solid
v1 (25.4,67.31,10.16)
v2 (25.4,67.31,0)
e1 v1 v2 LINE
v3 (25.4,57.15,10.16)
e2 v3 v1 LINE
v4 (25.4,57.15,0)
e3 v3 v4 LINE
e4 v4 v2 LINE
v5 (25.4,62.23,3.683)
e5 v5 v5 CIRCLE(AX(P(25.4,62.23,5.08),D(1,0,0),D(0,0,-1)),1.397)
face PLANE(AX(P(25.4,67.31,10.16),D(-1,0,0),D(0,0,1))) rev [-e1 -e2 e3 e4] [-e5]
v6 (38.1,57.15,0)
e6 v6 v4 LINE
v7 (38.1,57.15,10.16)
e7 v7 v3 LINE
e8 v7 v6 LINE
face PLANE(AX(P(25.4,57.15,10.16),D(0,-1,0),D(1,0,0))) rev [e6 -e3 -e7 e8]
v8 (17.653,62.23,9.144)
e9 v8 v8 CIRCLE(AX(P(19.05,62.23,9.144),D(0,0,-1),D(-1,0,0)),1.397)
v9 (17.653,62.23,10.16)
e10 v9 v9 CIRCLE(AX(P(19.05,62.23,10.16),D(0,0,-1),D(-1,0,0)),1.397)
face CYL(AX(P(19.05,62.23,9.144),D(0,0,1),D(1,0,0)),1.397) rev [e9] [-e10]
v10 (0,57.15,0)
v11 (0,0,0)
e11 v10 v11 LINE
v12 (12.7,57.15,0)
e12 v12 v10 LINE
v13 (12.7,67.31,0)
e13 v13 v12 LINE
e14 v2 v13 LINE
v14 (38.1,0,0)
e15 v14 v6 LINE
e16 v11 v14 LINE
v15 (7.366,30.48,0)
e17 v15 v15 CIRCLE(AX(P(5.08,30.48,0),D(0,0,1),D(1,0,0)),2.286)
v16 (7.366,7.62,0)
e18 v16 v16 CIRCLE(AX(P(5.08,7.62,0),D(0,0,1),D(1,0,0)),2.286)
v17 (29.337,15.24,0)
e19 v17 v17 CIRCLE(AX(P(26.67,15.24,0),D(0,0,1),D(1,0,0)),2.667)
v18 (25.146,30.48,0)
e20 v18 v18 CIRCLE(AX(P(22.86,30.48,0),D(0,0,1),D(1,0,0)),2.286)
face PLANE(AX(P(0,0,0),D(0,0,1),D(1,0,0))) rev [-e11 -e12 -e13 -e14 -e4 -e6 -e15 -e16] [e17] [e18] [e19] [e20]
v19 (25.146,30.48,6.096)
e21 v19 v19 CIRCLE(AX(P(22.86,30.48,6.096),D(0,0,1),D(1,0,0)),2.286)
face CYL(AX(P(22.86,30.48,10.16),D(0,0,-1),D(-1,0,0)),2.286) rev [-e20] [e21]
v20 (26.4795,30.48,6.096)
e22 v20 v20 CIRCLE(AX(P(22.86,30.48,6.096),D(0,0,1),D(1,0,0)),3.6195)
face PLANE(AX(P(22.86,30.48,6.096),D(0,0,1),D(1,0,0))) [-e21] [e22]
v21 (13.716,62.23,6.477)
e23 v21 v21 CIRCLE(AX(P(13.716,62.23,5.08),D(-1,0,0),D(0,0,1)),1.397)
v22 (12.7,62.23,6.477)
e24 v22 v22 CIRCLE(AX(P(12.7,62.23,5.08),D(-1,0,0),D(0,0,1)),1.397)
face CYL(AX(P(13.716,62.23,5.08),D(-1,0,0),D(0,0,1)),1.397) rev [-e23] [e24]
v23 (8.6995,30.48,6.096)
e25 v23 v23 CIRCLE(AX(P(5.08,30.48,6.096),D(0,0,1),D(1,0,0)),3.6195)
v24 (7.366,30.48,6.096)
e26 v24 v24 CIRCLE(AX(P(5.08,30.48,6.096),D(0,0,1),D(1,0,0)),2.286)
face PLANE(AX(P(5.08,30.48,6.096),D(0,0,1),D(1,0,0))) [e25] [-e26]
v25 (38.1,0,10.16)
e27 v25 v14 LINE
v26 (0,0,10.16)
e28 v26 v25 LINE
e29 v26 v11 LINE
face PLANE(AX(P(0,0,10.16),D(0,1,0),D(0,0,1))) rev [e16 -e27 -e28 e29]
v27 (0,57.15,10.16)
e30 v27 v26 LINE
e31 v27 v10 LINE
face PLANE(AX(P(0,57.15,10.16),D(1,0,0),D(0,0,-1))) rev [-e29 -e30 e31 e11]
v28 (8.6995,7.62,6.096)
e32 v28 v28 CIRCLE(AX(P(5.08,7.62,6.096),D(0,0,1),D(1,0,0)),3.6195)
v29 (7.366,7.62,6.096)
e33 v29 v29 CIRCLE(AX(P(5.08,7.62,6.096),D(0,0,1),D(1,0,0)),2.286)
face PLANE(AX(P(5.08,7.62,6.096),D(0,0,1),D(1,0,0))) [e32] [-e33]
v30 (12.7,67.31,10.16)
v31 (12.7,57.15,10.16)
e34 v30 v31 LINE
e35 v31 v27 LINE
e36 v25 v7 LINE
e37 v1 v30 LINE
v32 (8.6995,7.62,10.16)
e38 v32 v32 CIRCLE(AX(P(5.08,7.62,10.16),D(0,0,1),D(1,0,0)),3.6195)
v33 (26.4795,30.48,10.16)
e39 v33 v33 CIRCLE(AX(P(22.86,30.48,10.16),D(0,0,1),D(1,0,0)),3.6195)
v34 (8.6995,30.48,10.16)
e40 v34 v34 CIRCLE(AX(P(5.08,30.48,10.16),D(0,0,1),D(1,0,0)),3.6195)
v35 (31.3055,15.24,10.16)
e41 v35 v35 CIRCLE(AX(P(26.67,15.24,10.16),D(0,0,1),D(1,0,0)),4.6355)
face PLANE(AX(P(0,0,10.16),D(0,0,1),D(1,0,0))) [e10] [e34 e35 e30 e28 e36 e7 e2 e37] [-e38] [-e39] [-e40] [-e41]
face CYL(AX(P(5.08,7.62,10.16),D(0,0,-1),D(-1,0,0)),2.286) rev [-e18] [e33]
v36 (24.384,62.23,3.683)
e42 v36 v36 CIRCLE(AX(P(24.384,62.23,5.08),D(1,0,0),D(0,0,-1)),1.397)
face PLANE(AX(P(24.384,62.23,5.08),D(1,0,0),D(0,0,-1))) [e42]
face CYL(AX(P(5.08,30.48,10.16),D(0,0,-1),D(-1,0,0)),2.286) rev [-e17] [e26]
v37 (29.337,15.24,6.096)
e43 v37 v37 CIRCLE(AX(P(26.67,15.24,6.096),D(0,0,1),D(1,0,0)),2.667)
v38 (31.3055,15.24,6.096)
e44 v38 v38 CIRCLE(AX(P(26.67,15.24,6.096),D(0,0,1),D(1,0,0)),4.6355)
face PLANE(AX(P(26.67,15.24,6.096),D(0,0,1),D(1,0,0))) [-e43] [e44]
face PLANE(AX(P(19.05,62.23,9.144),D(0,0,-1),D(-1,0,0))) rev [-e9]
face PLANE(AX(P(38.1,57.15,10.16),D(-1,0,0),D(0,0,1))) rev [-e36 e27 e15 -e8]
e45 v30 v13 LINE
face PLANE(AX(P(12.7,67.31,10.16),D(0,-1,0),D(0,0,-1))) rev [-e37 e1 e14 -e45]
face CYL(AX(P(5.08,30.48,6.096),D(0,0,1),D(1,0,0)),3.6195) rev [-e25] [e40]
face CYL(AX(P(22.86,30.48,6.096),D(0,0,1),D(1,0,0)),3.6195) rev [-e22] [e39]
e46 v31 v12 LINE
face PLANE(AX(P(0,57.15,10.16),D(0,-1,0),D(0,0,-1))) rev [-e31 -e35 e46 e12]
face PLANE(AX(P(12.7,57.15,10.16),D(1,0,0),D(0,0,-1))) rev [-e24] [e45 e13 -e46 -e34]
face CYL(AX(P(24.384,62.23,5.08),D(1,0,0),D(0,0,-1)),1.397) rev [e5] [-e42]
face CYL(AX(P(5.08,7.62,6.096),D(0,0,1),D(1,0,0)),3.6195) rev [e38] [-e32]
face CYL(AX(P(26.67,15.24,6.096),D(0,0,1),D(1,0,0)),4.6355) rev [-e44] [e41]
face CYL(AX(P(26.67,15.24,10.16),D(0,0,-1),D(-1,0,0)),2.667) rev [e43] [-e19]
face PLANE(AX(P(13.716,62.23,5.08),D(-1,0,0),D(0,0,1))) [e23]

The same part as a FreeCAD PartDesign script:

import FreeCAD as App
import Part
import Sketcher
Q = App.Units.Quantity


def add_polygon(sketch, points):
    """Adds a closed chain of lines whose ends are joined by coincident constraints."""
    first, n = sketch.GeometryCount, len(points)
    for a, b in zip(points, points[1:] + points[:1]):
        sketch.addGeometry(Part.LineSegment(App.Vector(*a, 0), App.Vector(*b, 0)), False)
    for i in range(n):
        sketch.addConstraint(Sketcher.Constraint("Coincident", first + i, 2, first + (i + 1) % n, 1))

doc = App.newDocument("Part")
body = doc.addObject("PartDesign::Body", "Body")

sketch1 = body.newObject("Sketcher::SketchObject", "Sketch")
sketch1.AttachmentSupport = (doc.getObject("XY_Plane"), [""])
sketch1.MapMode = "FlatFace"
add_polygon(sketch1, [(12.7, 57.15), (0, 57.15), (0, 0), (38.1, 0), (38.1, 57.15), (25.4, 57.15), (25.4, 67.31), (12.7, 67.31)])
sketch1.addGeometry(Part.Circle(App.Vector(26.67, 15.24, 0), App.Vector(0, 0, 1), 2.667), False)
sketch1.addGeometry(Part.Circle(App.Vector(5.08, 7.62, 0), App.Vector(0, 0, 1), 2.286), False)
sketch1.addGeometry(Part.Circle(App.Vector(22.86, 30.48, 0), App.Vector(0, 0, 1), 2.286), False)
sketch1.addGeometry(Part.Circle(App.Vector(5.08, 30.48, 0), App.Vector(0, 0, 1), 2.286), False)
sketch1.addConstraint(Sketcher.Constraint("Horizontal", 0))
sketch1.addConstraint(Sketcher.Constraint("Vertical", 1))
sketch1.addConstraint(Sketcher.Constraint("Horizontal", 2))
sketch1.addConstraint(Sketcher.Constraint("Vertical", 3))
sketch1.addConstraint(Sketcher.Constraint("Horizontal", 4))
sketch1.addConstraint(Sketcher.Constraint("Vertical", 5))
sketch1.addConstraint(Sketcher.Constraint("Horizontal", 6))
sketch1.addConstraint(Sketcher.Constraint("Vertical", 7))
sketch1.addConstraint(Sketcher.Constraint("Coincident", 1, 2, -1, 1))
sketch1.addConstraint(Sketcher.Constraint("Equal", 9, 10))
sketch1.addConstraint(Sketcher.Constraint("Equal", 10, 11))
sketch1.addConstraint(Sketcher.Constraint("Horizontal", 10, 3, 11, 3))
sketch1.addConstraint(Sketcher.Constraint("Horizontal", 0, 2, 3, 2))
sketch1.addConstraint(Sketcher.Constraint("Vertical", 9, 3, 11, 3))
sketch1.addConstraint(Sketcher.Constraint("Equal", 0, 4))
sketch1.addConstraint(Sketcher.Constraint("Equal", 4, 6))
sketch1.addConstraint(Sketcher.Constraint("Diameter", 8, Q("0.21 in")))
sketch1.addConstraint(Sketcher.Constraint("Diameter", 9, Q("0.18 in")))
sketch1.addConstraint(Sketcher.Constraint("DistanceX", 0, 2, 0, 1, Q("0.5 in")))
sketch1.addConstraint(Sketcher.Constraint("DistanceY", 5, 1, 5, 2, Q("0.4 in")))
sketch1.addConstraint(Sketcher.Constraint("DistanceY", 1, 2, 1, 1, Q("2.25 in")))
sketch1.addConstraint(Sketcher.Constraint("DistanceY", -1, 1, 8, 3, Q("0.6 in")))
sketch1.addConstraint(Sketcher.Constraint("DistanceX", -1, 1, 9, 3, Q("0.2 in")))
sketch1.addConstraint(Sketcher.Constraint("DistanceY", -1, 1, 9, 3, Q("0.3 in")))
sketch1.addConstraint(Sketcher.Constraint("DistanceX", -1, 1, 10, 3, Q("0.9 in")))
sketch1.addConstraint(Sketcher.Constraint("DistanceY", -1, 1, 10, 3, Q("1.2 in")))
sketch1.addConstraint(Sketcher.Constraint("DistanceX", -1, 1, 8, 3, Q("1.05 in")))
pad1 = body.newObject("PartDesign::Pad", "Pad")
pad1.Profile = sketch1
pad1.Length = Q("0.4 in")

sketch2 = body.newObject("Sketcher::SketchObject", "Sketch001")
sketch2.AttachmentSupport = (doc.getObject("XY_Plane"), [""])
sketch2.MapMode = "FlatFace"
sketch2.AttachmentOffset = App.Placement(App.Vector(0, 0, 0.4 * 25.4), App.Rotation())
sketch2.addGeometry(Part.Circle(App.Vector(5.08, 30.48, 0), App.Vector(0, 0, 1), 3.6195), False)
sketch2.addGeometry(Part.Circle(App.Vector(22.86, 30.48, 0), App.Vector(0, 0, 1), 3.6195), False)
sketch2.addGeometry(Part.Circle(App.Vector(5.08, 7.62, 0), App.Vector(0, 0, 1), 3.6195), False)
sketch2.addGeometry(Part.Circle(App.Vector(26.67, 15.24, 0), App.Vector(0, 0, 1), 4.6355), False)
sketch2.addConstraint(Sketcher.Constraint("Equal", 0, 1))
sketch2.addConstraint(Sketcher.Constraint("Equal", 1, 2))
sketch2.addConstraint(Sketcher.Constraint("Horizontal", 0, 3, 1, 3))
sketch2.addConstraint(Sketcher.Constraint("Vertical", 0, 3, 2, 3))
sketch2.addConstraint(Sketcher.Constraint("Diameter", 0, Q("0.285 in")))
sketch2.addConstraint(Sketcher.Constraint("Diameter", 3, Q("0.365 in")))
sketch2.addConstraint(Sketcher.Constraint("DistanceX", -1, 1, 0, 3, Q("0.2 in")))
sketch2.addConstraint(Sketcher.Constraint("DistanceY", -1, 1, 0, 3, Q("1.2 in")))
sketch2.addConstraint(Sketcher.Constraint("DistanceX", -1, 1, 1, 3, Q("0.9 in")))
sketch2.addConstraint(Sketcher.Constraint("DistanceY", -1, 1, 2, 3, Q("0.3 in")))
sketch2.addConstraint(Sketcher.Constraint("DistanceY", -1, 1, 3, 3, Q("0.6 in")))
sketch2.addConstraint(Sketcher.Constraint("DistanceX", -1, 1, 3, 3, Q("1.05 in")))
pocket1 = body.newObject("PartDesign::Pocket", "Pocket")
pocket1.Profile = sketch2
pocket1.Length = Q("0.16 in")

sketch3 = body.newObject("Sketcher::SketchObject", "Sketch002")
sketch3.AttachmentSupport = (doc.getObject("XY_Plane"), [""])
sketch3.MapMode = "FlatFace"
sketch3.AttachmentOffset = App.Placement(App.Vector(0, 0, 0.4 * 25.4), App.Rotation())
sketch3.addGeometry(Part.Circle(App.Vector(19.05, 62.23, 0), App.Vector(0, 0, 1), 1.397), False)
sketch3.addConstraint(Sketcher.Constraint("Diameter", 0, Q("0.11 in")))
sketch3.addConstraint(Sketcher.Constraint("DistanceX", -1, 1, 0, 3, Q("0.75 in")))
sketch3.addConstraint(Sketcher.Constraint("DistanceY", -1, 1, 0, 3, Q("2.45 in")))
pocket2 = body.newObject("PartDesign::Pocket", "Pocket001")
pocket2.Profile = sketch3
pocket2.Length = Q("0.04 in")

sketch4 = body.newObject("Sketcher::SketchObject", "Sketch003")
sketch4.AttachmentSupport = (doc.getObject("YZ_Plane"), [""])
sketch4.MapMode = "FlatFace"
sketch4.AttachmentOffset = App.Placement(App.Vector(0, 0, 1 * 25.4), App.Rotation())
sketch4.addGeometry(Part.Circle(App.Vector(62.23, 5.08, 0), App.Vector(0, 0, 1), 1.397), False)
sketch4.addConstraint(Sketcher.Constraint("Diameter", 0, Q("0.11 in")))
sketch4.addConstraint(Sketcher.Constraint("DistanceY", -1, 1, 0, 3, Q("0.2 in")))
sketch4.addConstraint(Sketcher.Constraint("DistanceX", -1, 1, 0, 3, Q("2.45 in")))
pocket3 = body.newObject("PartDesign::Pocket", "Pocket002")
pocket3.Profile = sketch4
pocket3.Length = Q("0.04 in")

sketch5 = body.newObject("Sketcher::SketchObject", "Sketch004")
sketch5.AttachmentSupport = (doc.getObject("YZ_Plane"), [""])
sketch5.MapMode = "FlatFace"
sketch5.AttachmentOffset = App.Placement(App.Vector(0, 0, 0.54 * 25.4), App.Rotation())
sketch5.addGeometry(Part.Circle(App.Vector(62.23, 5.08, 0), App.Vector(0, 0, 1), 1.397), False)
sketch5.addConstraint(Sketcher.Constraint("Diameter", 0, Q("0.11 in")))
sketch5.addConstraint(Sketcher.Constraint("DistanceY", -1, 1, 0, 3, Q("0.2 in")))
sketch5.addConstraint(Sketcher.Constraint("DistanceX", -1, 1, 0, 3, Q("2.45 in")))
pocket4 = body.newObject("PartDesign::Pocket", "Pocket003")
pocket4.Profile = sketch5
pocket4.Length = Q("0.04 in")

doc.recompute()
